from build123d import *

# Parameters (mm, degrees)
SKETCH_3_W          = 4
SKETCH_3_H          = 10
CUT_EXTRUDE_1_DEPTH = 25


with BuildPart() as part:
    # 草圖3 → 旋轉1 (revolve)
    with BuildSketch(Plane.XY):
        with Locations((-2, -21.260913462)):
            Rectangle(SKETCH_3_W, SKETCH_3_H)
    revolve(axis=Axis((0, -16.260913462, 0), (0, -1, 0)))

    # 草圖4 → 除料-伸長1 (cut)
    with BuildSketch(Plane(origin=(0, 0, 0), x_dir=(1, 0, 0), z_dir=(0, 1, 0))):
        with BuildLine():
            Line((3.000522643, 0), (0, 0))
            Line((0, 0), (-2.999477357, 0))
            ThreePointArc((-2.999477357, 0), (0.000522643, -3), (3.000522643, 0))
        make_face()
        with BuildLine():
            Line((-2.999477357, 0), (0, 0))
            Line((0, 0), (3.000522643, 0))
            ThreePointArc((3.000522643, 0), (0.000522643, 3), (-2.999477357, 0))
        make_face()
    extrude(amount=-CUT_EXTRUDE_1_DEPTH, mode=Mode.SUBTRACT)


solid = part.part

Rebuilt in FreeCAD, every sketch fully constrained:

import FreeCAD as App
import Part
import Sketcher
from FreeCAD import Vector


def add_polygon(sketch, points):
    """Adds a closed chain of lines whose ends are joined by coincident constraints."""
    first, n = sketch.GeometryCount, len(points)
    for a, b in zip(points, points[1:] + points[:1]):
        sketch.addGeometry(Part.LineSegment(App.Vector(*a, 0), App.Vector(*b, 0)), False)
    for i in range(n):
        sketch.addConstraint(Sketcher.Constraint("Coincident", first + i, 2, first + (i + 1) % n, 1))

doc = App.newDocument("Part")
body = doc.addObject("PartDesign::Body", "Body")

# Sketch on XY plane
sketch1 = doc.addObject("Sketcher::SketchObject", "Sketch")
body.addObject(sketch1)
sketch1.AttachmentSupport = (doc.XY_Plane, [""])
sketch1.MapMode = "FlatFace"
add_polygon(sketch1, [(-4, -16.3), (-4, -26.3), (0, -26.3), (0, -16.3)])  # lines 0-3
sketch1.addConstraint(Sketcher.Constraint("Vertical", 0))
sketch1.addConstraint(Sketcher.Constraint("Horizontal", 1))
sketch1.addConstraint(Sketcher.Constraint("Vertical", 2))
sketch1.addConstraint(Sketcher.Constraint("Horizontal", 3))
sketch1.addConstraint(Sketcher.Constraint("PointOnObject", 1, 2, -2))
sketch1.addConstraint(Sketcher.Constraint("DistanceX", 1, 1, 1, 2, 4.0))
sketch1.addConstraint(Sketcher.Constraint("DistanceY", 0, 2, 0, 1, 10.0))
sketch1.addConstraint(Sketcher.Constraint("DistanceY", 0, 2, -1, 1, 26.260913))
revolution = doc.addObject("PartDesign::Revolution", "Revolution")
body.addObject(revolution)
revolution.Profile = sketch1
revolution.ReferenceAxis = (sketch1, ["V_Axis"])
revolution.Angle = 360

# Sketch on XZ plane
sketch2 = doc.addObject("Sketcher::SketchObject", "Sketch001")
body.addObject(sketch2)
sketch2.AttachmentSupport = (doc.XZ_Plane, [""])
sketch2.MapMode = "FlatFace"
sketch2.addGeometry(Part.Circle(Vector(0, 0, 0), Vector(0, 0, 1), 3), False)
sketch2.addConstraint(Sketcher.Constraint("PointOnObject", 0, 3, -1))
sketch2.addConstraint(Sketcher.Constraint("Diameter", 0, 6.0))
sketch2.addConstraint(Sketcher.Constraint("DistanceX", -1, 1, 0, 3, 0.000523))
pocket1 = doc.addObject("PartDesign::Pocket", "Pocket")
body.addObject(pocket1)
pocket1.Profile = sketch2
pocket1.Length = 25
pocket1.Reversed = True

doc.recompute()
